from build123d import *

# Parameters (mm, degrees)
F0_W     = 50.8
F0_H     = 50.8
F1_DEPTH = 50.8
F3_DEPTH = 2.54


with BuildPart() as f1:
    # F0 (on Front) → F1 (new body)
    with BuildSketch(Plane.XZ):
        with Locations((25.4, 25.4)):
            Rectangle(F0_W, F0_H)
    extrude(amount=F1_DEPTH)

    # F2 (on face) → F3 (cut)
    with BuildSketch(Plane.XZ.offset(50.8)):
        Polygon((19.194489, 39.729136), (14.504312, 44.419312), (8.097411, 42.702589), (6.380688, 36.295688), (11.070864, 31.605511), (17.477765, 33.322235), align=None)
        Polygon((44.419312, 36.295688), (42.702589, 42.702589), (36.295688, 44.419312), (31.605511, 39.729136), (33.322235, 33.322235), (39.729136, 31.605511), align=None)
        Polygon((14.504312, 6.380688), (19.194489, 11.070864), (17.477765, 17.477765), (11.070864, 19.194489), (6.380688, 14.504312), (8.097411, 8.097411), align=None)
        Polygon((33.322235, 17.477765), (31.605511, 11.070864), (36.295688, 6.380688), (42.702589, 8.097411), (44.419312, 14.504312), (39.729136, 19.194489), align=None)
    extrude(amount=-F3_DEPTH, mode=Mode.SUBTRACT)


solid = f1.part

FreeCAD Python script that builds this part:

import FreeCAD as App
import Part
import Sketcher

V = App.Vector
Q = App.Units.Quantity

doc = App.newDocument("Part")
body = doc.addObject("PartDesign::Body", "Body")

# Sketch on XZ plane
sketch1 = body.newObject("Sketcher::SketchObject", "Sketch")
sketch1.AttachmentSupport = (doc.getObject("XZ_Plane"), [""])
sketch1.MapMode = "FlatFace"
sketch1.addGeometry(Part.LineSegment(V(0, 50.8, 0), V(0, 0, 0)), False)
sketch1.addGeometry(Part.LineSegment(V(0, 0, 0), V(50.8, 0, 0)), False)
sketch1.addGeometry(Part.LineSegment(V(50.8, 0, 0), V(50.8, 50.8, 0)), False)
sketch1.addGeometry(Part.LineSegment(V(50.8, 50.8, 0), V(0, 50.8, 0)), False)
sketch1.addConstraint(Sketcher.Constraint("Coincident", 0, 2, 1, 1))
sketch1.addConstraint(Sketcher.Constraint("Coincident", 1, 2, 2, 1))
sketch1.addConstraint(Sketcher.Constraint("Coincident", 2, 2, 3, 1))
sketch1.addConstraint(Sketcher.Constraint("Coincident", 3, 2, 0, 1))
sketch1.addConstraint(Sketcher.Constraint("Vertical", 0))
sketch1.addConstraint(Sketcher.Constraint("Horizontal", 1))
sketch1.addConstraint(Sketcher.Constraint("Vertical", 2))
sketch1.addConstraint(Sketcher.Constraint("Horizontal", 3))
sketch1.addConstraint(Sketcher.Constraint("Coincident", 0, 2, -1, 1))
sketch1.addConstraint(Sketcher.Constraint("Equal", 3, 0))
sketch1.addConstraint(Sketcher.Constraint("DistanceX", 1, 1, 1, 2, Q("2 in")))
pad1 = body.newObject("PartDesign::Pad", "Pad")
pad1.Profile = sketch1
pad1.Length = Q("2 in")

# Sketch on XZ plane
sketch2 = body.newObject("Sketcher::SketchObject", "Sketch001")
sketch2.AttachmentSupport = (doc.getObject("XZ_Plane"), [""])
sketch2.MapMode = "FlatFace"
sketch2.AttachmentOffset = App.Placement(V(0, 0, 2 * 25.4), App.Rotation())
sketch2.addGeometry(Part.LineSegment(V(19.194489, 39.729136, 0), V(14.504312, 44.419312, 0)), False)
sketch2.addGeometry(Part.LineSegment(V(14.504312, 44.419312, 0), V(8.097411, 42.702589, 0)), False)
sketch2.addGeometry(Part.LineSegment(V(8.097411, 42.702589, 0), V(6.380688, 36.295688, 0)), False)
sketch2.addGeometry(Part.LineSegment(V(6.380688, 36.295688, 0), V(11.070864, 31.605511, 0)), False)
sketch2.addGeometry(Part.LineSegment(V(11.070864, 31.605511, 0), V(17.477765, 33.322235, 0)), False)
sketch2.addGeometry(Part.LineSegment(V(17.477765, 33.322235, 0), V(19.194489, 39.729136, 0)), False)
sketch2.addGeometry(Part.LineSegment(V(44.419312, 36.295688, 0), V(42.702589, 42.702589, 0)), False)
sketch2.addGeometry(Part.LineSegment(V(42.702589, 42.702589, 0), V(36.295688, 44.419312, 0)), False)
sketch2.addGeometry(Part.LineSegment(V(36.295688, 44.419312, 0), V(31.605511, 39.729136, 0)), False)
sketch2.addGeometry(Part.LineSegment(V(31.605511, 39.729136, 0), V(33.322235, 33.322235, 0)), False)
sketch2.addGeometry(Part.LineSegment(V(33.322235, 33.322235, 0), V(39.729136, 31.605511, 0)), False)
sketch2.addGeometry(Part.LineSegment(V(39.729136, 31.605511, 0), V(44.419312, 36.295688, 0)), False)
sketch2.addGeometry(Part.LineSegment(V(14.504312, 6.380688, 0), V(19.194489, 11.070864, 0)), False)
sketch2.addGeometry(Part.LineSegment(V(19.194489, 11.070864, 0), V(17.477765, 17.477765, 0)), False)
sketch2.addGeometry(Part.LineSegment(V(17.477765, 17.477765, 0), V(11.070864, 19.194489, 0)), False)
sketch2.addGeometry(Part.LineSegment(V(11.070864, 19.194489, 0), V(6.380688, 14.504312, 0)), False)
sketch2.addGeometry(Part.LineSegment(V(6.380688, 14.504312, 0), V(8.097411, 8.097411, 0)), False)
sketch2.addGeometry(Part.LineSegment(V(8.097411, 8.097411, 0), V(14.504312, 6.380688, 0)), False)
sketch2.addGeometry(Part.LineSegment(V(33.322235, 17.477765, 0), V(31.605511, 11.070864, 0)), False)
sketch2.addGeometry(Part.LineSegment(V(31.605511, 11.070864, 0), V(36.295688, 6.380688, 0)), False)
sketch2.addGeometry(Part.LineSegment(V(36.295688, 6.380688, 0), V(42.702589, 8.097411, 0)), False)
sketch2.addGeometry(Part.LineSegment(V(42.702589, 8.097411, 0), V(44.419312, 14.504312, 0)), False)
sketch2.addGeometry(Part.LineSegment(V(44.419312, 14.504312, 0), V(39.729136, 19.194489, 0)), False)
sketch2.addGeometry(Part.LineSegment(V(39.729136, 19.194489, 0), V(33.322235, 17.477765, 0)), False)
sketch2.addConstraint(Sketcher.Constraint("Coincident", 0, 2, 1, 1))
sketch2.addConstraint(Sketcher.Constraint("Coincident", 1, 2, 2, 1))
sketch2.addConstraint(Sketcher.Constraint("Coincident", 2, 2, 3, 1))
sketch2.addConstraint(Sketcher.Constraint("Coincident", 3, 2, 4, 1))
sketch2.addConstraint(Sketcher.Constraint("Coincident", 4, 2, 5, 1))
sketch2.addConstraint(Sketcher.Constraint("Coincident", 5, 2, 0, 1))
sketch2.addConstraint(Sketcher.Constraint("Coincident", 6, 2, 7, 1))
sketch2.addConstraint(Sketcher.Constraint("Coincident", 7, 2, 8, 1))
sketch2.addConstraint(Sketcher.Constraint("Coincident", 8, 2, 9, 1))
sketch2.addConstraint(Sketcher.Constraint("Coincident", 9, 2, 10, 1))
sketch2.addConstraint(Sketcher.Constraint("Coincident", 10, 2, 11, 1))
sketch2.addConstraint(Sketcher.Constraint("Coincident", 11, 2, 6, 1))
sketch2.addConstraint(Sketcher.Constraint("Coincident", 12, 2, 13, 1))
sketch2.addConstraint(Sketcher.Constraint("Coincident", 13, 2, 14, 1))
sketch2.addConstraint(Sketcher.Constraint("Coincident", 14, 2, 15, 1))
sketch2.addConstraint(Sketcher.Constraint("Coincident", 15, 2, 16, 1))
sketch2.addConstraint(Sketcher.Constraint("Coincident", 16, 2, 17, 1))
sketch2.addConstraint(Sketcher.Constraint("Coincident", 17, 2, 12, 1))
sketch2.addConstraint(Sketcher.Constraint("Coincident", 18, 2, 19, 1))
sketch2.addConstraint(Sketcher.Constraint("Coincident", 19, 2, 20, 1))
sketch2.addConstraint(Sketcher.Constraint("Coincident", 20, 2, 21, 1))
sketch2.addConstraint(Sketcher.Constraint("Coincident", 21, 2, 22, 1))
sketch2.addConstraint(Sketcher.Constraint("Coincident", 22, 2, 23, 1))
sketch2.addConstraint(Sketcher.Constraint("Coincident", 23, 2, 18, 1))
sketch2.addConstraint(Sketcher.Constraint("Parallel", 0, 3))
sketch2.addConstraint(Sketcher.Constraint("Parallel", 1, 4))
sketch2.addConstraint(Sketcher.Constraint("Parallel", 2, 5))
sketch2.addConstraint(Sketcher.Constraint("Perpendicular", 4, 6))
sketch2.addConstraint(Sketcher.Constraint("Perpendicular", 5, 7))
sketch2.addConstraint(Sketcher.Constraint("Perpendicular", 3, 8))
sketch2.addConstraint(Sketcher.Constraint("Parallel", 6, 9))
sketch2.addConstraint(Sketcher.Constraint("Parallel", 7, 10))
sketch2.addConstraint(Sketcher.Constraint("Parallel", 8, 11))
sketch2.addConstraint(Sketcher.Constraint("Parallel", 11, 12))
sketch2.addConstraint(Sketcher.Constraint("Parallel", 9, 13))
sketch2.addConstraint(Sketcher.Constraint("Parallel", 10, 14))
sketch2.addConstraint(Sketcher.Constraint("Parallel", 12, 15))
sketch2.addConstraint(Sketcher.Constraint("Parallel", 13, 16))
sketch2.addConstraint(Sketcher.Constraint("Parallel", 14, 17))
sketch2.addConstraint(Sketcher.Constraint("Perpendicular", 17, 18))
sketch2.addConstraint(Sketcher.Constraint("Perpendicular", 15, 19))
sketch2.addConstraint(Sketcher.Constraint("Perpendicular", 16, 20))
sketch2.addConstraint(Sketcher.Constraint("Parallel", 18, 21))
sketch2.addConstraint(Sketcher.Constraint("Parallel", 19, 22))
sketch2.addConstraint(Sketcher.Constraint("Parallel", 20, 23))
sketch2.addConstraint(Sketcher.Constraint("Horizontal", 1, 2, 6, 2))
sketch2.addConstraint(Sketcher.Constraint("Horizontal", 0, 2, 7, 2))
sketch2.addConstraint(Sketcher.Constraint("Horizontal", 5, 2, 8, 2))
sketch2.addConstraint(Sketcher.Constraint("Horizontal", 4, 2, 9, 2))
sketch2.addConstraint(Sketcher.Constraint("Horizontal", 3, 2, 10, 2))
sketch2.addConstraint(Sketcher.Constraint("Horizontal", 12, 2, 18, 2))
sketch2.addConstraint(Sketcher.Constraint("Horizontal", 17, 2, 19, 2))
sketch2.addConstraint(Sketcher.Constraint("Horizontal", 16, 2, 20, 2))
sketch2.addConstraint(Sketcher.Constraint("Horizontal", 15, 2, 21, 2))
sketch2.addConstraint(Sketcher.Constraint("Horizontal", 14, 2, 22, 2))
sketch2.addConstraint(Sketcher.Constraint("Vertical", 5, 2, 12, 2))
sketch2.addConstraint(Sketcher.Constraint("Vertical", 4, 2, 13, 2))
sketch2.addConstraint(Sketcher.Constraint("Vertical", 3, 2, 14, 2))
sketch2.addConstraint(Sketcher.Constraint("Vertical", 2, 2, 15, 2))
sketch2.addConstraint(Sketcher.Constraint("Vertical", 1, 2, 16, 2))
sketch2.addConstraint(Sketcher.Constraint("Vertical", 8, 2, 18, 2))
sketch2.addConstraint(Sketcher.Constraint("Vertical", 7, 2, 19, 2))
sketch2.addConstraint(Sketcher.Constraint("Vertical", 6, 2, 20, 2))
sketch2.addConstraint(Sketcher.Constraint("Equal", 0, 1))
sketch2.addConstraint(Sketcher.Constraint("Equal", 1, 2))
sketch2.addConstraint(Sketcher.Constraint("Equal", 2, 3))
sketch2.addConstraint(Sketcher.Constraint("Angle", 1, Q("-165.000008 deg")))
sketch2.addConstraint(Sketcher.Constraint("DistanceX", 1, 2, 0, 2, 6.406901))
sketch2.addConstraint(Sketcher.Constraint("DistanceX", 5, 2, 6, 2, 23.5081))
sketch2.addConstraint(Sketcher.Constraint("DistanceY", 14, 2, 2, 2, 17.101199))
sketch2.addConstraint(Sketcher.Constraint("DistanceY", -1, 1, 0, 2, 44.419312))
sketch2.addConstraint(Sketcher.Constraint("DistanceX", -1, 1, 1, 2, 8.097411))
pocket1 = body.newObject("PartDesign::Pocket", "Pocket")
pocket1.Profile = sketch2
pocket1.Length = Q("0.1 in")

doc.recompute()
